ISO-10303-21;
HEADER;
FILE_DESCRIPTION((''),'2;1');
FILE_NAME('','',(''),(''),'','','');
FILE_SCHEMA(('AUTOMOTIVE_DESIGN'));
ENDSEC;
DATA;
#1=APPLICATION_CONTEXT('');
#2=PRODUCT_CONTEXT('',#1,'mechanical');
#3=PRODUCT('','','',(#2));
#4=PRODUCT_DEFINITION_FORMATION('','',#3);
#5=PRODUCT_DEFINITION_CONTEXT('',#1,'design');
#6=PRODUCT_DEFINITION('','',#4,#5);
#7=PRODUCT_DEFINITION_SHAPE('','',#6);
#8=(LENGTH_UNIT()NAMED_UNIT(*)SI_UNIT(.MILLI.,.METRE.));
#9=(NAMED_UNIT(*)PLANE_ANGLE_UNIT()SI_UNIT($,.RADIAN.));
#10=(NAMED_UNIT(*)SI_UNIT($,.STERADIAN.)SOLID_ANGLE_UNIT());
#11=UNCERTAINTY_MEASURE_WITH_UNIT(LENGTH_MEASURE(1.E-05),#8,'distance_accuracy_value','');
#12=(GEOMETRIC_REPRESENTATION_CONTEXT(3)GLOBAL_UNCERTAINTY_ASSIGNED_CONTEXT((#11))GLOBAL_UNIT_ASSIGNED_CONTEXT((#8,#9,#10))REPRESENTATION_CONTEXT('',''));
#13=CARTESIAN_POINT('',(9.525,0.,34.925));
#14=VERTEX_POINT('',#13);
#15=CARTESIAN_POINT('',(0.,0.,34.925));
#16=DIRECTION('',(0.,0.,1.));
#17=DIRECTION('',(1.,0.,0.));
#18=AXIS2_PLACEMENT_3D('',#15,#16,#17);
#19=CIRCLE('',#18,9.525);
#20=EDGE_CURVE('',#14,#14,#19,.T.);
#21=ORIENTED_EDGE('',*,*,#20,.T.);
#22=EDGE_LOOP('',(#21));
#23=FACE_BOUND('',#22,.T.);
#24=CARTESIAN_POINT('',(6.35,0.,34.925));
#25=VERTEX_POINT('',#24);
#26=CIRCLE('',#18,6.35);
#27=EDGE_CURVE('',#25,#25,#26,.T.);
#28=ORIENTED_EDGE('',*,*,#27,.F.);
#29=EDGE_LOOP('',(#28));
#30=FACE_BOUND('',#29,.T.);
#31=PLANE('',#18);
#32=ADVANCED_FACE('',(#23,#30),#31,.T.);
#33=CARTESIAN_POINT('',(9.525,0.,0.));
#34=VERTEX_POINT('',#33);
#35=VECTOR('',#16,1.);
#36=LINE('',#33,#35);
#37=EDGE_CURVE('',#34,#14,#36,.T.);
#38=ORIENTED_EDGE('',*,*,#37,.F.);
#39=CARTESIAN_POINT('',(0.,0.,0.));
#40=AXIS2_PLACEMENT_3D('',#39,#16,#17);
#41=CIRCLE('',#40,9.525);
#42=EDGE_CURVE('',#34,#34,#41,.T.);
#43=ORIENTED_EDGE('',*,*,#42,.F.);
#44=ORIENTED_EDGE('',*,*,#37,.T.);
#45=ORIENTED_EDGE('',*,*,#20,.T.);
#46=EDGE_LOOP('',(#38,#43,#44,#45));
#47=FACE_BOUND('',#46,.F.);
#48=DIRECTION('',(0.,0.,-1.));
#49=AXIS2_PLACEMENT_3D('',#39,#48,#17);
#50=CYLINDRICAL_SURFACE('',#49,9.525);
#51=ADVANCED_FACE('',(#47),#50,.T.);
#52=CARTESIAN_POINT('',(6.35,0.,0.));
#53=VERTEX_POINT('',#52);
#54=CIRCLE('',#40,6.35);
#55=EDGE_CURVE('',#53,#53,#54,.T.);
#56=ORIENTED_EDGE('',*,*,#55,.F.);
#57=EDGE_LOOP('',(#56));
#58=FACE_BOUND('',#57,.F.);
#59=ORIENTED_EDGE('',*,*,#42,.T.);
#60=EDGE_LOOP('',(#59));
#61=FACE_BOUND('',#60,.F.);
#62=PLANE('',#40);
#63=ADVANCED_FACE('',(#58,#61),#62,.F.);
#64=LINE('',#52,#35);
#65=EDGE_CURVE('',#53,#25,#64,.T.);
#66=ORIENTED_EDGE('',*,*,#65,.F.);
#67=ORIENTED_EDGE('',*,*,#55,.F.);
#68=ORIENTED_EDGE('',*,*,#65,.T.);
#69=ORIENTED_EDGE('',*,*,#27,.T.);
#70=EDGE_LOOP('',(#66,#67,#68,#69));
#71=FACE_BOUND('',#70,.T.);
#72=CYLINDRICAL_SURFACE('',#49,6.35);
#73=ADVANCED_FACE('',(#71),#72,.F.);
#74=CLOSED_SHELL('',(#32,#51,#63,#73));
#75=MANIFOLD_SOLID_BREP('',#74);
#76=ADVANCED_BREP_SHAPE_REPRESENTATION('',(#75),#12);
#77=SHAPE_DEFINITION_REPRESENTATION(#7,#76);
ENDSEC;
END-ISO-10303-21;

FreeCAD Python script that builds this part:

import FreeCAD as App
import Part
import Sketcher
Q = App.Units.Quantity

doc = App.newDocument("Part")
body = doc.addObject("PartDesign::Body", "Body")

# Sketch on XY plane
sketch1 = body.newObject("Sketcher::SketchObject", "Sketch")
sketch1.AttachmentSupport = (doc.getObject("XY_Plane"), [""])
sketch1.MapMode = "FlatFace"
sketch1.addGeometry([
    Part.Circle(App.Vector(0, 0, 0), App.Vector(0, 0, 1), 10),
    Part.Circle(App.Vector(0, 0, 0), App.Vector(0, 0, 1), 6),
], False)
sketch1.addConstraint([
    Sketcher.Constraint("Coincident", 0, 3, -1, 1),
    Sketcher.Constraint("Coincident", 1, 3, -1, 1),
    Sketcher.Constraint("Diameter", 1, Q("0.5 in")),
    Sketcher.Constraint("Diameter", 0, Q("0.75 in")),
])
pad1 = body.newObject("PartDesign::Pad", "Pad")
pad1.Profile = sketch1
pad1.Length = Q("1.375 in")

doc.recompute()
